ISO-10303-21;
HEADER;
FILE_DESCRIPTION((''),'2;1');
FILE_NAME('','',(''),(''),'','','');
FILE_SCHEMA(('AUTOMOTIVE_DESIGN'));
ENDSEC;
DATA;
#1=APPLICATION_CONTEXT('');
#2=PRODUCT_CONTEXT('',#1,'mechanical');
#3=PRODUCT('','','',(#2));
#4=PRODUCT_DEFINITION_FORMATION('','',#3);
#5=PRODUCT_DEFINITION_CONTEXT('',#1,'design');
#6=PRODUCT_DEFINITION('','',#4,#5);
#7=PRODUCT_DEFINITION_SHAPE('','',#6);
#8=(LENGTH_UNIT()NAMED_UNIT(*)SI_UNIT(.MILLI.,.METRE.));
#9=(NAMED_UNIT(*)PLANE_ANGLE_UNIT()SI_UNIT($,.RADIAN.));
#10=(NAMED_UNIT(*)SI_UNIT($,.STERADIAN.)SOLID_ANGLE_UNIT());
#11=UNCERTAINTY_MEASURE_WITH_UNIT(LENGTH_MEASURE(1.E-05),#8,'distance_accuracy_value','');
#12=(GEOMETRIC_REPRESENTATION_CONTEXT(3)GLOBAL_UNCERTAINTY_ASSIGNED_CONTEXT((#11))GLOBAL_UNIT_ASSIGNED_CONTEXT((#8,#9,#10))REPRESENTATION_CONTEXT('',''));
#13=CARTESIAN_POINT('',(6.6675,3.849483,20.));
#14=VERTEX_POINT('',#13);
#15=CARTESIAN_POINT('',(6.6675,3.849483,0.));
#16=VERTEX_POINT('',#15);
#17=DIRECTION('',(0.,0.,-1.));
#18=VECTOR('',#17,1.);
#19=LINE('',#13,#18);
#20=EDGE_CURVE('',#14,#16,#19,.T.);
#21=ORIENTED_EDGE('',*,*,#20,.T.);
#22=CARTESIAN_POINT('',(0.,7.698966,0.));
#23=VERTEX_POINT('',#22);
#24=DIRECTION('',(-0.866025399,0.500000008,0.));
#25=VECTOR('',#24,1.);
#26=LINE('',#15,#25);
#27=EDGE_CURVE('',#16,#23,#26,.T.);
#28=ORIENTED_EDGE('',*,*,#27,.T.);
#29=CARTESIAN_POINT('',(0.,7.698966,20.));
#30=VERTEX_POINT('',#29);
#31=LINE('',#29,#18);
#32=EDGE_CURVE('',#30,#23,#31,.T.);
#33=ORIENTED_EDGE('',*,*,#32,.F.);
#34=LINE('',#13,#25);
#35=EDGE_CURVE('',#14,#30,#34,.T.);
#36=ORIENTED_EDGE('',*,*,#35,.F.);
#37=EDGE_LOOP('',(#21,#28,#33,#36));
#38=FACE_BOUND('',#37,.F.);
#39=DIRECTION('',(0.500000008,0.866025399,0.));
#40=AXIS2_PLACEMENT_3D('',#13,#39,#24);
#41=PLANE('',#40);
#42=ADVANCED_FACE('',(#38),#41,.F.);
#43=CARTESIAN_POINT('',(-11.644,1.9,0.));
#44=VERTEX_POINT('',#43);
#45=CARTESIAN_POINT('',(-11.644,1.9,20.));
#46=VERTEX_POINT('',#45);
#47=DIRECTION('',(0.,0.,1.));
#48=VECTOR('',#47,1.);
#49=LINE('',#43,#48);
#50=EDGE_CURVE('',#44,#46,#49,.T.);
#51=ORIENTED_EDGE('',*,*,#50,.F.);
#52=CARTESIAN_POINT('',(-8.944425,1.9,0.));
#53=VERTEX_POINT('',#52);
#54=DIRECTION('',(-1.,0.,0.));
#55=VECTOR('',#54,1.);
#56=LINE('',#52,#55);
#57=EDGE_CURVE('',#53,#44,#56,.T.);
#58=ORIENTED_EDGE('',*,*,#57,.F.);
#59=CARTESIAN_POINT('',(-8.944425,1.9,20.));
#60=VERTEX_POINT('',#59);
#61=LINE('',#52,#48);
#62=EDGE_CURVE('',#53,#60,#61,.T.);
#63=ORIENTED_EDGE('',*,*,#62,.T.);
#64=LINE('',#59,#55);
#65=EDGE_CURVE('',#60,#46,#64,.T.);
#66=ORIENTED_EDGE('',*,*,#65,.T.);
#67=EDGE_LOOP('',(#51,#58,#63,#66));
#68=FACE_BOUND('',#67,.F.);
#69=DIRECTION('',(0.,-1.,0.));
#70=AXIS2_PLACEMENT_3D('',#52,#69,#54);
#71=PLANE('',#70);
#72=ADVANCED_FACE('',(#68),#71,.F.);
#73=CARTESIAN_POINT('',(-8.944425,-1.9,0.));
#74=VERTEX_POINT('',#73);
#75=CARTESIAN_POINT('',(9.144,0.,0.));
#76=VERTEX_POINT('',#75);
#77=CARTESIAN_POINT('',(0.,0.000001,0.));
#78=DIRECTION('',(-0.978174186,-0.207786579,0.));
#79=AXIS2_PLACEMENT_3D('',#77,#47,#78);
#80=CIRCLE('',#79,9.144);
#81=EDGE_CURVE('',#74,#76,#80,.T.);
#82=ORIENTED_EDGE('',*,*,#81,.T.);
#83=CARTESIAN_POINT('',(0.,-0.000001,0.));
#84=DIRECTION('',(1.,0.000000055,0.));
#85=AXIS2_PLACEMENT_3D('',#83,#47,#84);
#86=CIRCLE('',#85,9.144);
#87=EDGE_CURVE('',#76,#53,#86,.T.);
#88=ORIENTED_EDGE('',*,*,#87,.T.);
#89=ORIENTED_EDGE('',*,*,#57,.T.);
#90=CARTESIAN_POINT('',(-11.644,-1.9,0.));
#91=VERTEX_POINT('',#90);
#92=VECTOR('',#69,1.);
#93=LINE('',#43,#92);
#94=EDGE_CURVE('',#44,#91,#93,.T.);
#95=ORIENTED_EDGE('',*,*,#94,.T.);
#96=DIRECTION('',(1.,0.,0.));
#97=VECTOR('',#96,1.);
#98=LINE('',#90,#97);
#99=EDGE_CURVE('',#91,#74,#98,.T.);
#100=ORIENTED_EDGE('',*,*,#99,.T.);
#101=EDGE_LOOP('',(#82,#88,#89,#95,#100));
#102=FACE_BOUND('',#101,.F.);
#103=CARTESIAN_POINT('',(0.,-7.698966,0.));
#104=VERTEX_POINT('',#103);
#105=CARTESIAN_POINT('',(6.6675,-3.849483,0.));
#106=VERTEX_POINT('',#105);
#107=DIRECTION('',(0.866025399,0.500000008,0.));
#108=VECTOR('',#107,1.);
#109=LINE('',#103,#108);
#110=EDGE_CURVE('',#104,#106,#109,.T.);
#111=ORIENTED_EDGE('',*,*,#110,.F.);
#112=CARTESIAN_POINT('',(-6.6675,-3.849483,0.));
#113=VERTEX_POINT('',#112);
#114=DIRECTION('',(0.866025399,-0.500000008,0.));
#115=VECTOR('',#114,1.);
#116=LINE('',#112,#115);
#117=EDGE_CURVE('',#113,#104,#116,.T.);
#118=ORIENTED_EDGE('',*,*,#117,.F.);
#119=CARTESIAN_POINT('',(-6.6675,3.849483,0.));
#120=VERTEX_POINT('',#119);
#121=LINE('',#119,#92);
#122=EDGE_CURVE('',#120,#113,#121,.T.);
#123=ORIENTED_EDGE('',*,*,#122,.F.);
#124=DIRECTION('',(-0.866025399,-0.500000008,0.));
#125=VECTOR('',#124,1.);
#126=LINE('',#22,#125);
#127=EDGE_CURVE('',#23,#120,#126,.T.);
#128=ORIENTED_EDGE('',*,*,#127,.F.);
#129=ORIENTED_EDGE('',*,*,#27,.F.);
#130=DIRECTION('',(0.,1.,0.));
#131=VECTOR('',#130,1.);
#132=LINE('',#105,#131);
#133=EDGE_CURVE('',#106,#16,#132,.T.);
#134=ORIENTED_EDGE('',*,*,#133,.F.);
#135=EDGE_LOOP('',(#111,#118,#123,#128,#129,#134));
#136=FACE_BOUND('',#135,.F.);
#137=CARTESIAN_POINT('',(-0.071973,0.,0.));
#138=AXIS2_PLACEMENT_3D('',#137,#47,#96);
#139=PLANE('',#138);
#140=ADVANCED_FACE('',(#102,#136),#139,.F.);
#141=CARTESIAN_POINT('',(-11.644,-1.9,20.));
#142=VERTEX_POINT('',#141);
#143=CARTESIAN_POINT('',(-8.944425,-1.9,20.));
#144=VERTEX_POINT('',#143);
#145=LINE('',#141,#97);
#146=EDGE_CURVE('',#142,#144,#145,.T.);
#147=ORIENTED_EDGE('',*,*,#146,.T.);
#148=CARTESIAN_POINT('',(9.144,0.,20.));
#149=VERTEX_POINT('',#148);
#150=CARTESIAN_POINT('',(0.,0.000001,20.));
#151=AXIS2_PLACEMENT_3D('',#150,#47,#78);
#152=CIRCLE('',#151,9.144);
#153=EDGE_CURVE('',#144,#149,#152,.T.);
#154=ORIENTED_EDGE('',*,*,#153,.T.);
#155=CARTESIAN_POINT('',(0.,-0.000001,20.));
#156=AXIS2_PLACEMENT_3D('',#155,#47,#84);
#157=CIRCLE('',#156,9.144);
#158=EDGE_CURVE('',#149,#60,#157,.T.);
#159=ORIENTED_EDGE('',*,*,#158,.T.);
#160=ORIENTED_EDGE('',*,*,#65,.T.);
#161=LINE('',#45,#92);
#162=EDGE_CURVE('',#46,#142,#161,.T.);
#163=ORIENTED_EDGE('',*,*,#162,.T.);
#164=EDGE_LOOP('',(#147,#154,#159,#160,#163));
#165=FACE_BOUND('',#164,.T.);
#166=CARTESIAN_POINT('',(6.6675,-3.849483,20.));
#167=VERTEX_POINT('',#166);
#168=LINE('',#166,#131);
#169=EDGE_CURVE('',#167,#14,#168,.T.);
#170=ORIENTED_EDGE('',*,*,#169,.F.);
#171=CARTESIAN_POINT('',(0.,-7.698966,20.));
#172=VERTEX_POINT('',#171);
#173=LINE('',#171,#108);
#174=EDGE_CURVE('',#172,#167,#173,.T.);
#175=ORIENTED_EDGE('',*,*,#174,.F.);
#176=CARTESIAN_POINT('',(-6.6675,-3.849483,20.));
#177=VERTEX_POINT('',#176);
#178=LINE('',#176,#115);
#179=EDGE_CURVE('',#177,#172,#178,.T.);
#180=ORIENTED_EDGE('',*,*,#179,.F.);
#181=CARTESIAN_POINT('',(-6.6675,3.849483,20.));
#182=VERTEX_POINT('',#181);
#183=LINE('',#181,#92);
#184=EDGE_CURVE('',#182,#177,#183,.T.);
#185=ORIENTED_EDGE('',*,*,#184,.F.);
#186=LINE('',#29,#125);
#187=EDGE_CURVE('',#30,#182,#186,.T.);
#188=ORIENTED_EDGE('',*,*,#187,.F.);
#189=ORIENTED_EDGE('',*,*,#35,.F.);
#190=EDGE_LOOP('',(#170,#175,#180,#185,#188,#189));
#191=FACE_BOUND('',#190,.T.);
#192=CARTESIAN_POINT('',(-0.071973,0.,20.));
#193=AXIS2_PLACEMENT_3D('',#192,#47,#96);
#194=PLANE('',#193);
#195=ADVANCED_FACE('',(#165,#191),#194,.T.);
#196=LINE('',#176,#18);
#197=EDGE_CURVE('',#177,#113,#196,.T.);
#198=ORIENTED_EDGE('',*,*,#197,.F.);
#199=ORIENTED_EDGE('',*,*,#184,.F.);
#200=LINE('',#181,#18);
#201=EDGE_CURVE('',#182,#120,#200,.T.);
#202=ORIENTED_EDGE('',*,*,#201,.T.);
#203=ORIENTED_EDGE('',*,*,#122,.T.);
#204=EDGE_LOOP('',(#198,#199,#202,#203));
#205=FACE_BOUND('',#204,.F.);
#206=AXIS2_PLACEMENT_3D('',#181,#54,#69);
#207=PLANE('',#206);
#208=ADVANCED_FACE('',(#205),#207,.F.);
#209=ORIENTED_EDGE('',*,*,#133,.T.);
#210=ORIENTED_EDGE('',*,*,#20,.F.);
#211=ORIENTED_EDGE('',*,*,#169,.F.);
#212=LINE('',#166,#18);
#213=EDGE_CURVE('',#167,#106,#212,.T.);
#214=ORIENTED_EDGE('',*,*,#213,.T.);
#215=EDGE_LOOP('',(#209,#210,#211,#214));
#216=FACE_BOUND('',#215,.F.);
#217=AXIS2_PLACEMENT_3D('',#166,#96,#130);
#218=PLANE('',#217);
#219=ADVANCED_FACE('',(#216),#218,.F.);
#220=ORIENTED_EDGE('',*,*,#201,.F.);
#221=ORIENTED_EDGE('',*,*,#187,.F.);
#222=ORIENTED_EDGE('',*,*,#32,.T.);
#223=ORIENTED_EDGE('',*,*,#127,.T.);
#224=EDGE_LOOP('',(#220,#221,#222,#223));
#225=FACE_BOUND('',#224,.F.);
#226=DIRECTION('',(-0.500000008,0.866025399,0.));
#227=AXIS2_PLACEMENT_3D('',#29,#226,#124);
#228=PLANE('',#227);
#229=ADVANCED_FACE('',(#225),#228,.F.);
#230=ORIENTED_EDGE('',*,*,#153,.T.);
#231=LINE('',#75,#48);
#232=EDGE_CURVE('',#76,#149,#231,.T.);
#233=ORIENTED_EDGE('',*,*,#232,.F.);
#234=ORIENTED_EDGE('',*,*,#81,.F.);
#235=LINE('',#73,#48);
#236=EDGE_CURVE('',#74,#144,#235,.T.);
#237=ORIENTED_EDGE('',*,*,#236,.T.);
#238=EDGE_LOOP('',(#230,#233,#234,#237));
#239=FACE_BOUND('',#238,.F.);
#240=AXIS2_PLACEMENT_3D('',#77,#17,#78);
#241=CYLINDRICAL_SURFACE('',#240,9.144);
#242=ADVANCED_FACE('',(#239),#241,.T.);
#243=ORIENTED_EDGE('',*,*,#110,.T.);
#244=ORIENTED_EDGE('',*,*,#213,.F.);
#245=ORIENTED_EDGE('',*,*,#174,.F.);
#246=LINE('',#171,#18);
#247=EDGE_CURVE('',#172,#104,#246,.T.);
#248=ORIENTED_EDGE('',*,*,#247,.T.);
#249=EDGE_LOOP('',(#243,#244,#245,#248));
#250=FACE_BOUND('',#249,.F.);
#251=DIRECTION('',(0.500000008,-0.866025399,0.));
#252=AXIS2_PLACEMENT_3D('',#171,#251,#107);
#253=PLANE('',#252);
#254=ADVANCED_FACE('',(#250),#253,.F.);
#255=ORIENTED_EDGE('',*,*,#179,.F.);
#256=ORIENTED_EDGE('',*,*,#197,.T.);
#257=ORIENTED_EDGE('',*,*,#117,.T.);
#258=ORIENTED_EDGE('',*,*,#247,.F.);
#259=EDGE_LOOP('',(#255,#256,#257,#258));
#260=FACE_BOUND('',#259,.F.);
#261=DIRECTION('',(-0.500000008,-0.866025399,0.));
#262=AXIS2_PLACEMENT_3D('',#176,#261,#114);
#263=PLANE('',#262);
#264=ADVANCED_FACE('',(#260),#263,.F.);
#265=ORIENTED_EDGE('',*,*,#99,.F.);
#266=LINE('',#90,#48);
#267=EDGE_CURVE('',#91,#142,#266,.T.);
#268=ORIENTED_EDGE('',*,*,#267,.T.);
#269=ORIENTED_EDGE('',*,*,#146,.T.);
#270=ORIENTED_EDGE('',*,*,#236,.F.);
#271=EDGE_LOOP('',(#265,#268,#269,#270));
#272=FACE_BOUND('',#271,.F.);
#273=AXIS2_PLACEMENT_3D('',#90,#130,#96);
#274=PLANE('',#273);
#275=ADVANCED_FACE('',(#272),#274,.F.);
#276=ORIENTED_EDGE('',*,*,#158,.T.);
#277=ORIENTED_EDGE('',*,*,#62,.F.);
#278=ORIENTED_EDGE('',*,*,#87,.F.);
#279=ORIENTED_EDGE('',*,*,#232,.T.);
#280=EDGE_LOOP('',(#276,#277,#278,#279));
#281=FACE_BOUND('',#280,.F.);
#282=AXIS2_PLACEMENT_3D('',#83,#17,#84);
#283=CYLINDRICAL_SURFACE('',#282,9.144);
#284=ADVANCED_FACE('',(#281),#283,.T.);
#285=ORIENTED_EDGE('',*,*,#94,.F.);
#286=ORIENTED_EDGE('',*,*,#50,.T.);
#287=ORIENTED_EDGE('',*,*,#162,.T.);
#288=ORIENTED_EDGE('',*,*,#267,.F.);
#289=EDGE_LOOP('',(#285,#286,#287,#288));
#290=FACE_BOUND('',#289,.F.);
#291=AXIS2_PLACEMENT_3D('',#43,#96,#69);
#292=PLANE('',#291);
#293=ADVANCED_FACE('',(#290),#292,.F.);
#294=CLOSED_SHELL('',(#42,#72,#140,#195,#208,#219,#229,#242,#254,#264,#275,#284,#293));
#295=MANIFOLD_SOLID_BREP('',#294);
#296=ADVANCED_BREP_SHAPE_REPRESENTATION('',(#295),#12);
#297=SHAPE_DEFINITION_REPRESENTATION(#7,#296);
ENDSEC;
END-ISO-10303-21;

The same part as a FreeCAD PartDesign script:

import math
import FreeCAD as App
import Part
import Sketcher
from FreeCAD import Vector
Q = App.Units.Quantity

doc = App.newDocument("Part")
body = doc.addObject("PartDesign::Body", "Body")

sketch1 = doc.addObject("Sketcher::SketchObject", "Sketch")
body.addObject(sketch1)
sketch1.AttachmentSupport = (doc.XY_Plane, [""])
sketch1.MapMode = "FlatFace"
sketch1.addGeometry([
    Part.ArcOfCircle(Part.Circle(Vector(0, 0.000001, 0), Vector(0, 0, 1), 9.144), math.radians(-168.007328), math.radians(-0.000003)),
    Part.ArcOfCircle(Part.Circle(Vector(0, -0.000001, 0), Vector(0, 0, 1), 9.144), math.radians(0.000003), math.radians(168.007328)),
    Part.LineSegment(Vector(-8.944425, 1.9, 0), Vector(-11.644, 1.9, 0)),
    Part.LineSegment(Vector(-11.644, 1.9, 0), Vector(-11.644, -1.9, 0)),
    Part.LineSegment(Vector(-11.644, -1.9, 0), Vector(-8.944425, -1.9, 0)),
], False)
sketch1.addConstraint([
    Sketcher.Constraint("Tangent", 0, 2, 1, 1),
    Sketcher.Constraint("Coincident", 1, 2, 2, 1),
    Sketcher.Constraint("Coincident", 2, 2, 3, 1),
    Sketcher.Constraint("Coincident", 3, 2, 4, 1),
    Sketcher.Constraint("Coincident", 4, 2, 0, 1),
    Sketcher.Constraint("Horizontal", 2),
    Sketcher.Constraint("Vertical", 3),
    Sketcher.Constraint("Horizontal", 4),
    Sketcher.Constraint("Coincident", 0, 3, -1, 1),
    Sketcher.Constraint("Equal", 0, 1),
    Sketcher.Constraint("PointOnObject", 0, 2, -1),
    Sketcher.Constraint("Vertical", 1, 2, 4, 2),
    Sketcher.Constraint("DistanceY", 3, 2, 3, 1, 3.8),
    Sketcher.Constraint("Radius", 0, 9.144),
    Sketcher.Constraint("DistanceX", 2, 2, -1, 1, 11.644),
])
pad1 = doc.addObject("PartDesign::Pad", "Pad")
body.addObject(pad1)
pad1.Profile = sketch1
pad1.Length = 20

sketch2 = doc.addObject("Sketcher::SketchObject", "Sketch001")
body.addObject(sketch2)
sketch2.AttachmentSupport = (doc.XY_Plane, [""])
sketch2.MapMode = "FlatFace"
sketch2.AttachmentOffset = App.Placement(Vector(0, 0, 20), App.Rotation())
sketch2.addGeometry([
    Part.LineSegment(Vector(6.6675, -3.849483, 0), Vector(6.6675, 3.849483, 0)),
    Part.LineSegment(Vector(6.6675, 3.849483, 0), Vector(0, 7.698966, 0)),
    Part.LineSegment(Vector(0, 7.698966, 0), Vector(-6.6675, 3.849483, 0)),
    Part.LineSegment(Vector(-6.6675, 3.849483, 0), Vector(-6.6675, -3.849483, 0)),
    Part.LineSegment(Vector(-6.6675, -3.849483, 0), Vector(0, -7.698966, 0)),
    Part.LineSegment(Vector(0, -7.698966, 0), Vector(6.6675, -3.849483, 0)),
], False)
sketch2.addConstraint([
    Sketcher.Constraint("Coincident", 0, 2, 1, 1),
    Sketcher.Constraint("Coincident", 1, 2, 2, 1),
    Sketcher.Constraint("Coincident", 2, 2, 3, 1),
    Sketcher.Constraint("Coincident", 3, 2, 4, 1),
    Sketcher.Constraint("Coincident", 4, 2, 5, 1),
    Sketcher.Constraint("Coincident", 5, 2, 0, 1),
    Sketcher.Constraint("Vertical", 0),
    Sketcher.Constraint("Vertical", 3),
    Sketcher.Constraint("Symmetric", 0, 2, 3, 2, -1, 1),
    Sketcher.Constraint("Symmetric", 1, 2, 4, 2, -1, 1),
    Sketcher.Constraint("PointOnObject", 1, 2, -2),
    Sketcher.Constraint("Parallel", 2, 5),
    Sketcher.Constraint("Horizontal", 0, 2, 2, 2),
    Sketcher.Constraint("Angle", 1, Q("149.999999 deg")),
    Sketcher.Constraint("DistanceX", 2, 2, 0, 2, 13.335),
    Sketcher.Constraint("DistanceY", 0, 1, 0, 2, 7.698966),
])
pocket1 = doc.addObject("PartDesign::Pocket", "Pocket")
body.addObject(pocket1)
pocket1.Profile = sketch2
pocket1.Type = "ThroughAll"

doc.recompute()
